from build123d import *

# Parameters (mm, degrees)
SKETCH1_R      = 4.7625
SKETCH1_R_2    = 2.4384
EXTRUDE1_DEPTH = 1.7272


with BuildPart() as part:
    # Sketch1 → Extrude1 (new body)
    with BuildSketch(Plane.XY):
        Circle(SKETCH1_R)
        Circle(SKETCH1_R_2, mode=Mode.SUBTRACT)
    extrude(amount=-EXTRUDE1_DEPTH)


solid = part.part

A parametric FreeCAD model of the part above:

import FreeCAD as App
import Part
import Sketcher
Q = App.Units.Quantity

doc = App.newDocument("Part")
body = doc.addObject("PartDesign::Body", "Body")

sketch1 = doc.addObject("Sketcher::SketchObject", "Sketch")
body.addObject(sketch1)
sketch1.AttachmentSupport = (doc.XY_Plane, [""])
sketch1.MapMode = "FlatFace"
sketch1.addGeometry([
    Part.Circle(App.Vector(0, 0, 0), App.Vector(0, 0, 1), 4.7625),
    Part.Circle(App.Vector(0, 0, 0), App.Vector(0, 0, 1), 2.4384),
], False)
sketch1.addConstraint([
    Sketcher.Constraint("Coincident", 0, 3, -1, 1),
    Sketcher.Constraint("Coincident", 1, 3, -1, 1),
    Sketcher.Constraint("Diameter", 0, Q("0.375 in")),
    Sketcher.Constraint("Diameter", 1, Q("0.192 in")),
])
pad1 = doc.addObject("PartDesign::Pad", "Pad")
body.addObject(pad1)
pad1.Profile = sketch1
pad1.Length = Q("0.068 in")
pad1.Reversed = True

doc.recompute()
